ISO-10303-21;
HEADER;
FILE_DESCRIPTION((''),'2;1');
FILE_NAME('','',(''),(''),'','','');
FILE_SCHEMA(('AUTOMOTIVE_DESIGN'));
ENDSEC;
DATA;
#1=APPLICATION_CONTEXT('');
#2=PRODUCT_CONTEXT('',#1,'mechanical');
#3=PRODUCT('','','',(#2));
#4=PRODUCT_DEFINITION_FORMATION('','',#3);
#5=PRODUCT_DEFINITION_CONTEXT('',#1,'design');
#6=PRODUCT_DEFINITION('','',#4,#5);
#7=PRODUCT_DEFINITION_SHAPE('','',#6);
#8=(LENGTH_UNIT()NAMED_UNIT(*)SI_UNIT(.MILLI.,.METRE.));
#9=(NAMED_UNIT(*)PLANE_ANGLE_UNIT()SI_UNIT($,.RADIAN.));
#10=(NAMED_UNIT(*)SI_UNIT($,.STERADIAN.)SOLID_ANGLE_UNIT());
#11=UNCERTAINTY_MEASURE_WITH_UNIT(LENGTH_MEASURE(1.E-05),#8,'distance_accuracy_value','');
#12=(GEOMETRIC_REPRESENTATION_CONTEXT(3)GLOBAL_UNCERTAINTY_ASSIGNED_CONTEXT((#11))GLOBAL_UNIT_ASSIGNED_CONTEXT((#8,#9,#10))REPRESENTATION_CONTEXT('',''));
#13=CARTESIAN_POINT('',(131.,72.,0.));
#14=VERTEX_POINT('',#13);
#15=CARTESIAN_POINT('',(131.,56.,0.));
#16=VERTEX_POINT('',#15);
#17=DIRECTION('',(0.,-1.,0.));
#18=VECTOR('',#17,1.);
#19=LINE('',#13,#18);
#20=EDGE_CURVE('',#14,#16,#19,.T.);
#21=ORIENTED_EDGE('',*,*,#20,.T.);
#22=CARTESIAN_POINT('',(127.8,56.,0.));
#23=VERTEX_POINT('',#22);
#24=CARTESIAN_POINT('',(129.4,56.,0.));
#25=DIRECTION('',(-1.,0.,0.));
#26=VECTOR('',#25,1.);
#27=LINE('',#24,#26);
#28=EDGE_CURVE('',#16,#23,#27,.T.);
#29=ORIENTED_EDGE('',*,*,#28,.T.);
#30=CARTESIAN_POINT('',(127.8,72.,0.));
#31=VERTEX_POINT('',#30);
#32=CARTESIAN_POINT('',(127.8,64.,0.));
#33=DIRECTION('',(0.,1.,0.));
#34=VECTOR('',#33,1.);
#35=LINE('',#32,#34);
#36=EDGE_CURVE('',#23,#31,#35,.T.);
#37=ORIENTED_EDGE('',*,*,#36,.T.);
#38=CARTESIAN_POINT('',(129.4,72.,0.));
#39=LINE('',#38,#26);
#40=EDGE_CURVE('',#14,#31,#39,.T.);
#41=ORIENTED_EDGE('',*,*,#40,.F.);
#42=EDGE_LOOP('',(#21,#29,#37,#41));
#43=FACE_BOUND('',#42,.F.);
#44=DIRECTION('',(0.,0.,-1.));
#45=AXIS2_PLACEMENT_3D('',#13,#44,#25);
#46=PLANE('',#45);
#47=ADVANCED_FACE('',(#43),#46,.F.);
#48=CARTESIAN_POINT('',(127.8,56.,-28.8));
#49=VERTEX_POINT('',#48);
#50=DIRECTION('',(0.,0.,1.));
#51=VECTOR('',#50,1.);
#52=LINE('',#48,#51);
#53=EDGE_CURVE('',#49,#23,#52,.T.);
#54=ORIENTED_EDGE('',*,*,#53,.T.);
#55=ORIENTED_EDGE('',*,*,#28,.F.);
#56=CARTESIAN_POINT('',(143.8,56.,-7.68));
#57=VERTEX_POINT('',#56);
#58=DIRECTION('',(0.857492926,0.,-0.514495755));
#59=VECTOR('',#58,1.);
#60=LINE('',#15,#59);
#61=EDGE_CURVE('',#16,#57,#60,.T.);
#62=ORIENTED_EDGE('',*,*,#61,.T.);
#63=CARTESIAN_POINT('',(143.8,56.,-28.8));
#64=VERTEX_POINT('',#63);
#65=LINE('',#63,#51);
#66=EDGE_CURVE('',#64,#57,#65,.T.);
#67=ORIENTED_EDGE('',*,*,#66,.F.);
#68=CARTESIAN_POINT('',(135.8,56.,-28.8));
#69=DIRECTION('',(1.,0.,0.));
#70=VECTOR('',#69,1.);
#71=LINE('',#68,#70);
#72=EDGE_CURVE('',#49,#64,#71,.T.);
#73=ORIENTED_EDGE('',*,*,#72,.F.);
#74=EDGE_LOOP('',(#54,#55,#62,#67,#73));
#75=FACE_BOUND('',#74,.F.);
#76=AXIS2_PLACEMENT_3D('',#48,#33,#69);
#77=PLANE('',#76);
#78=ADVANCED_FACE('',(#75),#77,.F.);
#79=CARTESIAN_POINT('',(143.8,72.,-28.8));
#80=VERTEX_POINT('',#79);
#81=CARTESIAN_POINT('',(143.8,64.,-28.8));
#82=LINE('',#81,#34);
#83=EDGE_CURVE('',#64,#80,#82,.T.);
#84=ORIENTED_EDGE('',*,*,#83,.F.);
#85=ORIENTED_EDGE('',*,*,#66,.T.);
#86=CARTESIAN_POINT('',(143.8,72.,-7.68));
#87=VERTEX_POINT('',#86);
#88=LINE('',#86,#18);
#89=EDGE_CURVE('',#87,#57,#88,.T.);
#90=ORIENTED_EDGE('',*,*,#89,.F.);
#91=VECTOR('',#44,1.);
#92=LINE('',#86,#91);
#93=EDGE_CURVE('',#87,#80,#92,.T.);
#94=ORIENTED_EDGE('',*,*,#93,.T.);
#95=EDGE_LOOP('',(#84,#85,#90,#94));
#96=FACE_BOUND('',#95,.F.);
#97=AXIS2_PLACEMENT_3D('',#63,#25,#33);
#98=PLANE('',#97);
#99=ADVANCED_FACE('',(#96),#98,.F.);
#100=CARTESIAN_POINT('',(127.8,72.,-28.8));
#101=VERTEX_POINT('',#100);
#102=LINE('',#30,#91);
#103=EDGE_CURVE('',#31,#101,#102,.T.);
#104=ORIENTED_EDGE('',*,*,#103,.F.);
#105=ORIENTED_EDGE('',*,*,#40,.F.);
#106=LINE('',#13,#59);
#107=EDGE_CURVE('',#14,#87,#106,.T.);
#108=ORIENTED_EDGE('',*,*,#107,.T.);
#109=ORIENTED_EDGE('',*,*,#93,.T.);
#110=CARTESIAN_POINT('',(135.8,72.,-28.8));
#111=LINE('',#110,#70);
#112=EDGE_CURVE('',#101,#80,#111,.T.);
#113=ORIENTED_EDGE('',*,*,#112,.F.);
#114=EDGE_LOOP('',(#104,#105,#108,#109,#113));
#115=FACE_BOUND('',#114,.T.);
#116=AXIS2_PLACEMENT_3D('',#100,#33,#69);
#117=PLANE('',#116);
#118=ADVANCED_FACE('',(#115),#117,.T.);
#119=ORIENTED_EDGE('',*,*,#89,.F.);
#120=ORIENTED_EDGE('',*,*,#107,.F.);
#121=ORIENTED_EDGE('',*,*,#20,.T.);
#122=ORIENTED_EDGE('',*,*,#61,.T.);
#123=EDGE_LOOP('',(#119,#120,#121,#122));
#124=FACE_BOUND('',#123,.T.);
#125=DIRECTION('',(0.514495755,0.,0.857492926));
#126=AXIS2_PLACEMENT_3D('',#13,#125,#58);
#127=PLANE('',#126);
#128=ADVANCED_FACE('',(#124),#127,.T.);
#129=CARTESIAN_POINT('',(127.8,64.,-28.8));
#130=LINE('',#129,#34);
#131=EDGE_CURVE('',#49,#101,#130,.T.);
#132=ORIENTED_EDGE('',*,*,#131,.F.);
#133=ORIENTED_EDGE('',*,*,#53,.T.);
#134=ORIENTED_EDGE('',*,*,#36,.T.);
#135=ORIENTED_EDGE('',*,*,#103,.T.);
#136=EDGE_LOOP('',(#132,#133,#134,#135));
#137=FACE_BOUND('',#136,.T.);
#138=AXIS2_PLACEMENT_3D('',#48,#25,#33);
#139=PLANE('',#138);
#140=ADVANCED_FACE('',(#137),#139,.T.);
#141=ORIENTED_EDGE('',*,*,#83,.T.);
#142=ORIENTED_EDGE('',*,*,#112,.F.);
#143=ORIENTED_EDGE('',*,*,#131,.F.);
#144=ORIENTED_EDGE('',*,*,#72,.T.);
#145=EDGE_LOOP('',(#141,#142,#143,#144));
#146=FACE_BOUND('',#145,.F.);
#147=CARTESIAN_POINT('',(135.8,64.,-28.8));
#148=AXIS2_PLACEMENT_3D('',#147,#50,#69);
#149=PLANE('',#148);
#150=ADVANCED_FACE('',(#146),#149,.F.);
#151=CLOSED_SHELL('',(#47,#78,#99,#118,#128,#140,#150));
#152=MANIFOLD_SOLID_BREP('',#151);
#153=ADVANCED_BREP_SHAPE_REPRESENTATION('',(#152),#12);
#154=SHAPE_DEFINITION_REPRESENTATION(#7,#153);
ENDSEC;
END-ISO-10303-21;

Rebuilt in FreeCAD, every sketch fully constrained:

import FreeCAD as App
import Part
import Sketcher

V = App.Vector

doc = App.newDocument("Part")
params = doc.addObject("Spreadsheet::Sheet", "Params")
for row, (alias, value) in enumerate([
    ("sketch1_width", "16 mm"),
    ("pad1_length", "28.8 mm"),
    ("sketch2_width", "16 mm"),
    ("sketch2_height", "9.6 mm"),
    ("pocket1_length", "16 mm"),
    ("sketch3_width", "3.2 mm"),
    ("pad2_length", "16 mm"),
], start=1):
    params.set(f"A{row}", alias)
    params.set(f"B{row}", "=" + value)
    params.setAlias(f"B{row}", alias)

body = doc.addObject("PartDesign::Body", "Body")

sketch1 = doc.addObject("Sketcher::SketchObject", "Sketch")
body.addObject(sketch1)
sketch1.AttachmentSupport = (doc.XY_Plane, [""])
sketch1.MapMode = "FlatFace"
sketch1.AttachmentOffset = App.Placement(V(0, 0, -28.8), App.Rotation())
sketch1.addGeometry(Part.LineSegment(V(128, 72, 0), V(128, 56, 0)), False)
sketch1.addGeometry(Part.LineSegment(V(128, 56, 0), V(144, 56, 0)), False)
sketch1.addGeometry(Part.LineSegment(V(144, 56, 0), V(144, 72, 0)), False)
sketch1.addGeometry(Part.LineSegment(V(144, 72, 0), V(128, 72, 0)), False)
sketch1.addConstraint(Sketcher.Constraint("Coincident", 0, 2, 1, 1))
sketch1.addConstraint(Sketcher.Constraint("Coincident", 1, 2, 2, 1))
sketch1.addConstraint(Sketcher.Constraint("Coincident", 2, 2, 3, 1))
sketch1.addConstraint(Sketcher.Constraint("Coincident", 3, 2, 0, 1))
sketch1.addConstraint(Sketcher.Constraint("Vertical", 0))
sketch1.addConstraint(Sketcher.Constraint("Horizontal", 1))
sketch1.addConstraint(Sketcher.Constraint("Vertical", 2))
sketch1.addConstraint(Sketcher.Constraint("Horizontal", 3))
sketch1.addConstraint(Sketcher.Constraint("Equal", 3, 0))
sketch1.addConstraint(Sketcher.Constraint("DistanceX", 1, 1, 1, 2, 16.0))
sketch1.addConstraint(Sketcher.Constraint("DistanceY", -1, 1, 0, 2, 56.0))
sketch1.addConstraint(Sketcher.Constraint("DistanceX", -1, 1, 0, 2, 127.8))
sketch1.setExpression("Constraints[9]", "Params.sketch1_width")
pad1 = doc.addObject("PartDesign::Pad", "Pad")
body.addObject(pad1)
pad1.Profile = sketch1
pad1.setExpression("Length", "Params.pad1_length")

sketch2 = doc.addObject("Sketcher::SketchObject", "Sketch001")
body.addObject(sketch2)
sketch2.AttachmentSupport = (doc.XZ_Plane, [""])
sketch2.MapMode = "FlatFace"
sketch2.AttachmentOffset = App.Placement(V(0, 0, -56), App.Rotation())
sketch2.addGeometry(Part.LineSegment(V(128, 0, 0), V(144, -10, 0)), False)
sketch2.addGeometry(Part.LineSegment(V(144, -10, 0), V(144, 0, 0)), False)
sketch2.addGeometry(Part.LineSegment(V(144, 0, 0), V(128, 0, 0)), False)
sketch2.addConstraint(Sketcher.Constraint("Coincident", 0, 2, 1, 1))
sketch2.addConstraint(Sketcher.Constraint("Coincident", 1, 2, 2, 1))
sketch2.addConstraint(Sketcher.Constraint("Coincident", 2, 2, 0, 1))
sketch2.addConstraint(Sketcher.Constraint("Vertical", 1))
sketch2.addConstraint(Sketcher.Constraint("Horizontal", 2))
sketch2.addConstraint(Sketcher.Constraint("PointOnObject", 1, 2, -1))
sketch2.addConstraint(Sketcher.Constraint("DistanceX", 2, 2, 2, 1, 16.0))
sketch2.addConstraint(Sketcher.Constraint("DistanceY", 1, 1, 1, 2, 9.6))
sketch2.addConstraint(Sketcher.Constraint("DistanceX", -1, 1, 0, 2, 143.8))
sketch2.setExpression("Constraints[6]", "Params.sketch2_width")
sketch2.setExpression("Constraints[7]", "Params.sketch2_height")
pocket1 = doc.addObject("PartDesign::Pocket", "Pocket")
body.addObject(pocket1)
pocket1.Profile = sketch2
pocket1.setExpression("Length", "Params.pocket1_length")

sketch3 = doc.addObject("Sketcher::SketchObject", "Sketch002")
body.addObject(sketch3)
sketch3.AttachmentSupport = (doc.XZ_Plane, [""])
sketch3.MapMode = "FlatFace"
sketch3.AttachmentOffset = App.Placement(V(0, 0, -72), App.Rotation())
sketch3.addGeometry(Part.LineSegment(V(131, -3.2, 0), V(127.8, -3.2, 0)), False)
sketch3.addGeometry(Part.LineSegment(V(127.8, -3.2, 0), V(127.8, 0, 0)), False)
sketch3.addGeometry(Part.LineSegment(V(127.8, 0, 0), V(131, 0, 0)), False)
sketch3.addGeometry(Part.LineSegment(V(131, 0, 0), V(143.8, -7.7, 0)), False)
sketch3.addGeometry(Part.LineSegment(V(143.8, -7.7, 0), V(143.8, -10.9, 0)), False)
sketch3.addGeometry(Part.LineSegment(V(143.8, -10.9, 0), V(131, -3.2, 0)), False)
sketch3.addConstraint(Sketcher.Constraint("Coincident", 0, 2, 1, 1))
sketch3.addConstraint(Sketcher.Constraint("Coincident", 1, 2, 2, 1))
sketch3.addConstraint(Sketcher.Constraint("Coincident", 2, 2, 3, 1))
sketch3.addConstraint(Sketcher.Constraint("Coincident", 3, 2, 4, 1))
sketch3.addConstraint(Sketcher.Constraint("Coincident", 4, 2, 5, 1))
sketch3.addConstraint(Sketcher.Constraint("Coincident", 5, 2, 0, 1))
sketch3.addConstraint(Sketcher.Constraint("Horizontal", 0))
sketch3.addConstraint(Sketcher.Constraint("Vertical", 1))
sketch3.addConstraint(Sketcher.Constraint("Horizontal", 2))
sketch3.addConstraint(Sketcher.Constraint("Vertical", 4))
sketch3.addConstraint(Sketcher.Constraint("PointOnObject", 1, 2, -1))
sketch3.addConstraint(Sketcher.Constraint("Parallel", 3, 5))
sketch3.addConstraint(Sketcher.Constraint("Vertical", 2, 2, 5, 2))
sketch3.addConstraint(Sketcher.Constraint("Equal", 2, 1))
sketch3.addConstraint(Sketcher.Constraint("DistanceX", 0, 2, 0, 1, 3.2))
sketch3.addConstraint(Sketcher.Constraint("DistanceX", -1, 1, 2, 2, 131.0))
sketch3.addConstraint(Sketcher.Constraint("DistanceX", 0, 2, 3, 2, 16.0))
sketch3.addConstraint(Sketcher.Constraint("DistanceY", 3, 2, -1, 1, 7.68))
sketch3.setExpression("Constraints[14]", "Params.sketch3_width")
pad2 = doc.addObject("PartDesign::Pad", "Pad001")
body.addObject(pad2)
pad2.Profile = sketch3
pad2.setExpression("Length", "Params.pad2_length")

doc.recompute()
